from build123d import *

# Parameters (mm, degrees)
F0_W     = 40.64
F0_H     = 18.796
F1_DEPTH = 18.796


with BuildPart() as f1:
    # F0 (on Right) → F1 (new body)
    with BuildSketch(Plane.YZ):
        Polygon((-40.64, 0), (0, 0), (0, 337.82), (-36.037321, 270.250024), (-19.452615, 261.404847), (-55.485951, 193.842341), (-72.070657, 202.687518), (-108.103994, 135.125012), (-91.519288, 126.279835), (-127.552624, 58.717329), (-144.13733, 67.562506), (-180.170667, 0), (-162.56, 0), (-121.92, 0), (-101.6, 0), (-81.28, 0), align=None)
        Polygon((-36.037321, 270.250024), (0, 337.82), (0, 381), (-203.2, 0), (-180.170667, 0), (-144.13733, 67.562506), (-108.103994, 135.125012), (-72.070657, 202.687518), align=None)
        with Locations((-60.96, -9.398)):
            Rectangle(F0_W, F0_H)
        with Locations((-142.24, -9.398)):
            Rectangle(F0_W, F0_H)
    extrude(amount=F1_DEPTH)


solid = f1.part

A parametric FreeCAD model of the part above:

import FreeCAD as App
import Part
import Sketcher
Q = App.Units.Quantity

doc = App.newDocument("Part")
params = doc.addObject("Spreadsheet::Sheet", "Params")
for row, (alias, value) in enumerate([
    ("sketch1_height", "15 in"),
    ("sketch1_length", "17 in"),
    ("sketch1_height2", "0.74 in"),
    ("sketch1_length2", "0.74 in"),
    ("pad1_length", "0.74 in"),
], start=1):
    params.set(f"A{row}", alias)
    params.set(f"B{row}", "=" + value)
    params.setAlias(f"B{row}", alias)

body = doc.addObject("PartDesign::Body", "Body")

sketch1 = body.newObject("Sketcher::SketchObject", "Sketch")
sketch1.AttachmentSupport = (doc.getObject("YZ_Plane"), [""])
sketch1.MapMode = "FlatFace"
sketch1.addGeometry([
    Part.LineSegment(App.Vector(0, 0, 0), App.Vector(0, 381, 0)),
    Part.LineSegment(App.Vector(0, 381, 0), App.Vector(-203.2, 0, 0)),
    Part.LineSegment(App.Vector(-203.2, 0, 0), App.Vector(-162.56, 0, 0)),
    Part.LineSegment(App.Vector(-162.56, 0, 0), App.Vector(-162.56, -18.796, 0)),
    Part.LineSegment(App.Vector(-162.56, -18.796, 0), App.Vector(-121.92, -18.796, 0)),
    Part.LineSegment(App.Vector(-121.92, -18.796, 0), App.Vector(-121.92, 0, 0)),
    Part.LineSegment(App.Vector(-121.92, 0, 0), App.Vector(-81.28, 0, 0)),
    Part.LineSegment(App.Vector(-81.28, 0, 0), App.Vector(-81.28, -18.796, 0)),
    Part.LineSegment(App.Vector(-81.28, -18.796, 0), App.Vector(-40.64, -18.796, 0)),
    Part.LineSegment(App.Vector(-40.64, -18.796, 0), App.Vector(-40.64, 0, 0)),
    Part.LineSegment(App.Vector(-40.64, 0, 0), App.Vector(0, 0, 0)),
    Part.LineSegment(App.Vector(-36.037321, 270.250024, 0), App.Vector(-19.452615, 261.404847, 0)),
    Part.LineSegment(App.Vector(-19.452615, 261.404847, 0), App.Vector(-55.485951, 193.842341, 0)),
    Part.LineSegment(App.Vector(-55.485951, 193.842341, 0), App.Vector(-72.070657, 202.687518, 0)),
    Part.LineSegment(App.Vector(-72.070657, 202.687518, 0), App.Vector(-36.037321, 270.250024, 0)),
    Part.LineSegment(App.Vector(-108.103994, 135.125012, 0), App.Vector(-91.519288, 126.279835, 0)),
    Part.LineSegment(App.Vector(-91.519288, 126.279835, 0), App.Vector(-127.552624, 58.717329, 0)),
    Part.LineSegment(App.Vector(-127.552624, 58.717329, 0), App.Vector(-144.13733, 67.562506, 0)),
    Part.LineSegment(App.Vector(-144.13733, 67.562506, 0), App.Vector(-108.103994, 135.125012, 0)),
], False)
sketch1.addConstraint([
    Sketcher.Constraint("Coincident", 0, 2, 1, 1),
    Sketcher.Constraint("Coincident", 1, 2, 2, 1),
    Sketcher.Constraint("Coincident", 2, 2, 3, 1),
    Sketcher.Constraint("Coincident", 3, 2, 4, 1),
    Sketcher.Constraint("Coincident", 4, 2, 5, 1),
    Sketcher.Constraint("Coincident", 5, 2, 6, 1),
    Sketcher.Constraint("Coincident", 6, 2, 7, 1),
    Sketcher.Constraint("Coincident", 7, 2, 8, 1),
    Sketcher.Constraint("Coincident", 8, 2, 9, 1),
    Sketcher.Constraint("Coincident", 9, 2, 10, 1),
    Sketcher.Constraint("Coincident", 10, 2, 0, 1),
    Sketcher.Constraint("Coincident", 11, 2, 12, 1),
    Sketcher.Constraint("Coincident", 12, 2, 13, 1),
    Sketcher.Constraint("Coincident", 13, 2, 14, 1),
    Sketcher.Constraint("Coincident", 14, 2, 11, 1),
    Sketcher.Constraint("Coincident", 15, 2, 16, 1),
    Sketcher.Constraint("Coincident", 16, 2, 17, 1),
    Sketcher.Constraint("Coincident", 17, 2, 18, 1),
    Sketcher.Constraint("Coincident", 18, 2, 15, 1),
    Sketcher.Constraint("Vertical", 0),
    Sketcher.Constraint("Horizontal", 2),
    Sketcher.Constraint("Vertical", 3),
    Sketcher.Constraint("Horizontal", 4),
    Sketcher.Constraint("Vertical", 5),
    Sketcher.Constraint("Horizontal", 6),
    Sketcher.Constraint("Vertical", 7),
    Sketcher.Constraint("Horizontal", 8),
    Sketcher.Constraint("Vertical", 9),
    Sketcher.Constraint("Horizontal", 10),
    Sketcher.Constraint("Coincident", 10, 2, -1, 1),
    Sketcher.Constraint("PointOnObject", 1, 2, -1),
    Sketcher.Constraint("PointOnObject", 5, 2, -1),
    Sketcher.Constraint("Perpendicular", 1, 11),
    Sketcher.Constraint("Perpendicular", 11, 12),
    Sketcher.Constraint("Perpendicular", 12, 13),
    Sketcher.Constraint("Perpendicular", 13, 14),
    Sketcher.Constraint("Perpendicular", 14, 15),
    Sketcher.Constraint("Perpendicular", 15, 16),
    Sketcher.Constraint("Perpendicular", 16, 17),
    Sketcher.Constraint("Perpendicular", 17, 18),
    Sketcher.Constraint("Horizontal", 4, 2, 7, 2),
    Sketcher.Constraint("Equal", 2, 4),
    Sketcher.Constraint("Equal", 4, 6),
    Sketcher.Constraint("Equal", 6, 8),
    Sketcher.Constraint("Equal", 8, 10),
    Sketcher.Constraint("Equal", 13, 15),
    Sketcher.Constraint("Equal", 14, 16),
    Sketcher.Constraint("DistanceY", 0, 1, 0, 2, Q("15 in")),
    Sketcher.Constraint("Distance", 1, Q("17 in")),
    Sketcher.Constraint("DistanceY", 3, 2, 3, 1, Q("0.74 in")),
    Sketcher.Constraint("Distance", 11, Q("0.74 in")),
    Sketcher.Constraint("Distance", 12, Q("3.0146 in")),
    Sketcher.Constraint("DistanceX", 12, 2, -1, 1, 55.485951),
    Sketcher.Constraint("DistanceY", -1, 1, 12, 2, 193.842341),
    Sketcher.Constraint("DistanceX", 15, 2, -1, 1, 91.519288),
    Sketcher.Constraint("DistanceY", -1, 1, 16, 2, 58.717329),
])
sketch1.setExpression("Constraints[47]", "Params.sketch1_height")
sketch1.setExpression("Constraints[48]", "Params.sketch1_length")
sketch1.setExpression("Constraints[49]", "Params.sketch1_height2")
sketch1.setExpression("Constraints[50]", "Params.sketch1_length2")
pad1 = body.newObject("PartDesign::Pad", "Pad")
pad1.Profile = sketch1
pad1.setExpression("Length", "Params.pad1_length")

doc.recompute()
